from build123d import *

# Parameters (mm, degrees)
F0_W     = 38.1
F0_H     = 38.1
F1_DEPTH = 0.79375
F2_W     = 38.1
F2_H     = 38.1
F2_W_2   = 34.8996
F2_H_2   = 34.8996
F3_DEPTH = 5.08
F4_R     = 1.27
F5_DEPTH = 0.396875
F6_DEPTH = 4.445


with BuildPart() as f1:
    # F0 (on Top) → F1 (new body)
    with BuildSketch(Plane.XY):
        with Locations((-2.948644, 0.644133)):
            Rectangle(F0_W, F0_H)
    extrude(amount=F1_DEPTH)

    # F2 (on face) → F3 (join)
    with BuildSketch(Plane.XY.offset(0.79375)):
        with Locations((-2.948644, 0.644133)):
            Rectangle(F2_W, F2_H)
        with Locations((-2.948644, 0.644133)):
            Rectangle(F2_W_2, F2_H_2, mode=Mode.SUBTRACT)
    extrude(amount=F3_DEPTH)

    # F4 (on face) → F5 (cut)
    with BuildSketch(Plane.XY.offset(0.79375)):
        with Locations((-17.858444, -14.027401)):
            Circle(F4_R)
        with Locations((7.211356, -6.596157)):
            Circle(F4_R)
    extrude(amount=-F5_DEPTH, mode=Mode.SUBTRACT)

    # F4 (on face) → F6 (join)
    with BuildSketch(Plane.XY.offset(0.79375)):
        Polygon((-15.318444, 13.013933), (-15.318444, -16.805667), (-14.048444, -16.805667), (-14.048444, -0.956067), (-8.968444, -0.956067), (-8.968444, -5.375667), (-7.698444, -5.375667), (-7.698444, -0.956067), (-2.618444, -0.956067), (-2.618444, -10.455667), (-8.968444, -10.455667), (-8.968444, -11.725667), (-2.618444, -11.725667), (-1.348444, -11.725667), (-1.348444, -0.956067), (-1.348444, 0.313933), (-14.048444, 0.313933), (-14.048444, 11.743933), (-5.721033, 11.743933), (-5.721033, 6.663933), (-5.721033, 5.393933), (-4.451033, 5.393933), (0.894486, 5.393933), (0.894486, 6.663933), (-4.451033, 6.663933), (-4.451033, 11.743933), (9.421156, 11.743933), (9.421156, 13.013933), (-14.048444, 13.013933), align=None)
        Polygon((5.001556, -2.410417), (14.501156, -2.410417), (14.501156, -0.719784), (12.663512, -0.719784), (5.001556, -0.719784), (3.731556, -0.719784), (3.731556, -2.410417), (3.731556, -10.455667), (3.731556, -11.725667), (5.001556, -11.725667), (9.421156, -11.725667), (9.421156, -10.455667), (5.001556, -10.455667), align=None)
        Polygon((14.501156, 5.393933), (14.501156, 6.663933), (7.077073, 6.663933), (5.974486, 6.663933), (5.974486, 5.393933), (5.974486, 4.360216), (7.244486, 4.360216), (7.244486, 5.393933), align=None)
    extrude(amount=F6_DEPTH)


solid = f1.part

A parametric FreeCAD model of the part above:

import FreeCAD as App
import Part
import Sketcher
from FreeCAD import Vector
Q = App.Units.Quantity

doc = App.newDocument("Part")
body = doc.addObject("PartDesign::Body", "Body")

# Sketch on XY plane
sketch1 = doc.addObject("Sketcher::SketchObject", "Sketch")
body.addObject(sketch1)
sketch1.AttachmentSupport = (doc.XY_Plane, [""])
sketch1.MapMode = "FlatFace"
sketch1.addGeometry(Part.LineSegment(Vector(-22, 20, 0), Vector(-22, -18, 0)), False)
sketch1.addGeometry(Part.LineSegment(Vector(-22, -18, 0), Vector(16, -18, 0)), False)
sketch1.addGeometry(Part.LineSegment(Vector(16, -18, 0), Vector(16, 20, 0)), False)
sketch1.addGeometry(Part.LineSegment(Vector(16, 20, 0), Vector(-22, 20, 0)), False)
sketch1.addConstraint(Sketcher.Constraint("Coincident", 0, 2, 1, 1))
sketch1.addConstraint(Sketcher.Constraint("Coincident", 1, 2, 2, 1))
sketch1.addConstraint(Sketcher.Constraint("Coincident", 2, 2, 3, 1))
sketch1.addConstraint(Sketcher.Constraint("Coincident", 3, 2, 0, 1))
sketch1.addConstraint(Sketcher.Constraint("Vertical", 0))
sketch1.addConstraint(Sketcher.Constraint("Horizontal", 1))
sketch1.addConstraint(Sketcher.Constraint("Vertical", 2))
sketch1.addConstraint(Sketcher.Constraint("Horizontal", 3))
sketch1.addConstraint(Sketcher.Constraint("Equal", 3, 0))
sketch1.addConstraint(Sketcher.Constraint("DistanceX", 1, 1, 1, 2, Q("1.5 in")))
sketch1.addConstraint(Sketcher.Constraint("DistanceX", 0, 2, -1, 1, Q("21.998644 mm")))
sketch1.addConstraint(Sketcher.Constraint("DistanceY", 0, 2, -1, 1, Q("18.405867 mm")))
pad1 = doc.addObject("PartDesign::Pad", "Pad")
body.addObject(pad1)
pad1.Profile = sketch1
pad1.Length = Q("0.03125 in")

# Sketch on XY plane
sketch2 = doc.addObject("Sketcher::SketchObject", "Sketch001")
body.addObject(sketch2)
sketch2.AttachmentSupport = (doc.XY_Plane, [""])
sketch2.MapMode = "FlatFace"
sketch2.AttachmentOffset = App.Placement(Vector(0, 0, 0.03125 * 25.4), App.Rotation())
sketch2.addGeometry(Part.LineSegment(Vector(-22, 20, 0), Vector(-22, -18, 0)), False)
sketch2.addGeometry(Part.LineSegment(Vector(-22, -18, 0), Vector(16, -18, 0)), False)
sketch2.addGeometry(Part.LineSegment(Vector(16, -18, 0), Vector(16, 20, 0)), False)
sketch2.addGeometry(Part.LineSegment(Vector(16, 20, 0), Vector(-22, 20, 0)), False)
sketch2.addGeometry(Part.LineSegment(Vector(15, -17, 0), Vector(-20, -17, 0)), False)
sketch2.addGeometry(Part.LineSegment(Vector(-20, -17, 0), Vector(-20, 18, 0)), False)
sketch2.addGeometry(Part.LineSegment(Vector(-20, 18, 0), Vector(15, 18, 0)), False)
sketch2.addGeometry(Part.LineSegment(Vector(15, 18, 0), Vector(15, -17, 0)), False)
sketch2.addConstraint(Sketcher.Constraint("Coincident", 0, 2, 1, 1))
sketch2.addConstraint(Sketcher.Constraint("Coincident", 1, 2, 2, 1))
sketch2.addConstraint(Sketcher.Constraint("Coincident", 2, 2, 3, 1))
sketch2.addConstraint(Sketcher.Constraint("Coincident", 3, 2, 0, 1))
sketch2.addConstraint(Sketcher.Constraint("Coincident", 4, 2, 5, 1))
sketch2.addConstraint(Sketcher.Constraint("Coincident", 5, 2, 6, 1))
sketch2.addConstraint(Sketcher.Constraint("Coincident", 6, 2, 7, 1))
sketch2.addConstraint(Sketcher.Constraint("Coincident", 7, 2, 4, 1))
sketch2.addConstraint(Sketcher.Constraint("Vertical", 0))
sketch2.addConstraint(Sketcher.Constraint("Horizontal", 1))
sketch2.addConstraint(Sketcher.Constraint("Vertical", 2))
sketch2.addConstraint(Sketcher.Constraint("Horizontal", 3))
sketch2.addConstraint(Sketcher.Constraint("Horizontal", 4))
sketch2.addConstraint(Sketcher.Constraint("Vertical", 5))
sketch2.addConstraint(Sketcher.Constraint("Horizontal", 6))
sketch2.addConstraint(Sketcher.Constraint("Vertical", 7))
sketch2.addConstraint(Sketcher.Constraint("Equal", 3, 0))
sketch2.addConstraint(Sketcher.Constraint("Equal", 6, 5))
sketch2.addConstraint(Sketcher.Constraint("DistanceX", 1, 1, 1, 2, Q("1.5 in")))
sketch2.addConstraint(Sketcher.Constraint("DistanceX", 4, 2, 4, 1, Q("1.374 in")))
sketch2.addConstraint(Sketcher.Constraint("DistanceX", 0, 2, 4, 2, Q("0.063 in")))
sketch2.addConstraint(Sketcher.Constraint("DistanceY", 0, 2, 4, 2, Q("0.063 in")))
sketch2.addConstraint(Sketcher.Constraint("DistanceX", 0, 2, -1, 1, Q("21.998644 mm")))
sketch2.addConstraint(Sketcher.Constraint("DistanceY", 0, 2, -1, 1, Q("18.405867 mm")))
pad2 = doc.addObject("PartDesign::Pad", "Pad001")
body.addObject(pad2)
pad2.Profile = sketch2
pad2.Length = Q("0.2 in")

# Sketch on XY plane
sketch3 = doc.addObject("Sketcher::SketchObject", "Sketch002")
body.addObject(sketch3)
sketch3.AttachmentSupport = (doc.XY_Plane, [""])
sketch3.MapMode = "FlatFace"
sketch3.AttachmentOffset = App.Placement(Vector(0, 0, 0.03125 * 25.4), App.Rotation())
sketch3.addGeometry(Part.Circle(Vector(-17.9, -14, 0), Vector(0, 0, 1), 1.3), False)
sketch3.addGeometry(Part.Circle(Vector(7.2, -6.6, 0), Vector(0, 0, 1), 1.3), False)
sketch3.addConstraint(Sketcher.Constraint("Equal", 0, 1))
sketch3.addConstraint(Sketcher.Constraint("Diameter", 0, Q("0.1 in")))
sketch3.addConstraint(Sketcher.Constraint("DistanceX", 0, 3, 1, 3, Q("0.987 in")))
sketch3.addConstraint(Sketcher.Constraint("DistanceY", 0, 3, -1, 1, Q("14.027401 mm")))
sketch3.addConstraint(Sketcher.Constraint("DistanceX", 0, 3, -1, 1, Q("17.858444 mm")))
sketch3.addConstraint(Sketcher.Constraint("DistanceY", 1, 3, -1, 1, Q("6.596157 mm")))
pocket1 = doc.addObject("PartDesign::Pocket", "Pocket")
body.addObject(pocket1)
pocket1.Profile = sketch3
pocket1.Length = Q("0.015625 in")

# Sketch on XY plane
sketch4 = doc.addObject("Sketcher::SketchObject", "Sketch003")
body.addObject(sketch4)
sketch4.AttachmentSupport = (doc.XY_Plane, [""])
sketch4.MapMode = "FlatFace"
sketch4.AttachmentOffset = App.Placement(Vector(0, 0, 0.03125 * 25.4), App.Rotation())
sketch4.addGeometry(Part.LineSegment(Vector(-15.3, 13, 0), Vector(-15.3, -16.8, 0)), False)
sketch4.addGeometry(Part.LineSegment(Vector(-15.3, -16.8, 0), Vector(-14, -16.8, 0)), False)
sketch4.addGeometry(Part.LineSegment(Vector(-14, -16.8, 0), Vector(-14, -1, 0)), False)
sketch4.addGeometry(Part.LineSegment(Vector(-14, -1, 0), Vector(-9, -1, 0)), False)
sketch4.addGeometry(Part.LineSegment(Vector(-9, -1, 0), Vector(-9, -5.4, 0)), False)
sketch4.addGeometry(Part.LineSegment(Vector(-9, -5.4, 0), Vector(-7.7, -5.4, 0)), False)
sketch4.addGeometry(Part.LineSegment(Vector(-7.7, -5.4, 0), Vector(-7.7, -1, 0)), False)
sketch4.addGeometry(Part.LineSegment(Vector(-7.7, -1, 0), Vector(-2.6, -1, 0)), False)
sketch4.addGeometry(Part.LineSegment(Vector(-2.6, -1, 0), Vector(-2.6, -10.5, 0)), False)
sketch4.addGeometry(Part.LineSegment(Vector(-2.6, -10.5, 0), Vector(-9, -10.5, 0)), False)
sketch4.addGeometry(Part.LineSegment(Vector(-9, -10.5, 0), Vector(-9, -11.7, 0)), False)
sketch4.addGeometry(Part.LineSegment(Vector(-9, -11.7, 0), Vector(-1.3, -11.7, 0)), False)
sketch4.addGeometry(Part.LineSegment(Vector(-1.3, -11.7, 0), Vector(-1.3, 0.3, 0)), False)
sketch4.addGeometry(Part.LineSegment(Vector(-1.3, 0.3, 0), Vector(-14, 0.3, 0)), False)
sketch4.addGeometry(Part.LineSegment(Vector(-14, 0.3, 0), Vector(-14, 11.7, 0)), False)
sketch4.addGeometry(Part.LineSegment(Vector(-14, 11.7, 0), Vector(-5.7, 11.7, 0)), False)
sketch4.addGeometry(Part.LineSegment(Vector(-5.7, 11.7, 0), Vector(-5.7, 5.4, 0)), False)
sketch4.addGeometry(Part.LineSegment(Vector(-5.7, 5.4, 0), Vector(0.9, 5.4, 0)), False)
sketch4.addGeometry(Part.LineSegment(Vector(0.9, 5.4, 0), Vector(0.9, 6.7, 0)), False)
sketch4.addGeometry(Part.LineSegment(Vector(0.9, 6.7, 0), Vector(-4.5, 6.7, 0)), False)
sketch4.addGeometry(Part.LineSegment(Vector(-4.5, 6.7, 0), Vector(-4.5, 11.7, 0)), False)
sketch4.addGeometry(Part.LineSegment(Vector(-4.5, 11.7, 0), Vector(9.4, 11.7, 0)), False)
sketch4.addGeometry(Part.LineSegment(Vector(9.4, 11.7, 0), Vector(9.4, 13, 0)), False)
sketch4.addGeometry(Part.LineSegment(Vector(9.4, 13, 0), Vector(-15.3, 13, 0)), False)
sketch4.addGeometry(Part.LineSegment(Vector(5, -2.4, 0), Vector(14.5, -2.4, 0)), False)
sketch4.addGeometry(Part.LineSegment(Vector(14.5, -2.4, 0), Vector(14.5, -0.7, 0)), False)
sketch4.addGeometry(Part.LineSegment(Vector(14.5, -0.7, 0), Vector(3.7, -0.7, 0)), False)
sketch4.addGeometry(Part.LineSegment(Vector(3.7, -0.7, 0), Vector(3.7, -11.7, 0)), False)
sketch4.addGeometry(Part.LineSegment(Vector(3.7, -11.7, 0), Vector(9.4, -11.7, 0)), False)
sketch4.addGeometry(Part.LineSegment(Vector(9.4, -11.7, 0), Vector(9.4, -10.5, 0)), False)
sketch4.addGeometry(Part.LineSegment(Vector(9.4, -10.5, 0), Vector(5, -10.5, 0)), False)
sketch4.addGeometry(Part.LineSegment(Vector(5, -10.5, 0), Vector(5, -2.4, 0)), False)
sketch4.addGeometry(Part.LineSegment(Vector(14.5, 5.4, 0), Vector(14.5, 6.7, 0)), False)
sketch4.addGeometry(Part.LineSegment(Vector(14.5, 6.7, 0), Vector(6, 6.7, 0)), False)
sketch4.addGeometry(Part.LineSegment(Vector(6, 6.7, 0), Vector(6, 4.4, 0)), False)
sketch4.addGeometry(Part.LineSegment(Vector(6, 4.4, 0), Vector(7.2, 4.4, 0)), False)
sketch4.addGeometry(Part.LineSegment(Vector(7.2, 4.4, 0), Vector(7.2, 5.4, 0)), False)
sketch4.addGeometry(Part.LineSegment(Vector(7.2, 5.4, 0), Vector(14.5, 5.4, 0)), False)
sketch4.addConstraint(Sketcher.Constraint("Coincident", 0, 2, 1, 1))
sketch4.addConstraint(Sketcher.Constraint("Coincident", 1, 2, 2, 1))
sketch4.addConstraint(Sketcher.Constraint("Coincident", 2, 2, 3, 1))
sketch4.addConstraint(Sketcher.Constraint("Coincident", 3, 2, 4, 1))
sketch4.addConstraint(Sketcher.Constraint("Coincident", 4, 2, 5, 1))
sketch4.addConstraint(Sketcher.Constraint("Coincident", 5, 2, 6, 1))
sketch4.addConstraint(Sketcher.Constraint("Coincident", 6, 2, 7, 1))
sketch4.addConstraint(Sketcher.Constraint("Coincident", 7, 2, 8, 1))
sketch4.addConstraint(Sketcher.Constraint("Coincident", 8, 2, 9, 1))
sketch4.addConstraint(Sketcher.Constraint("Coincident", 9, 2, 10, 1))
sketch4.addConstraint(Sketcher.Constraint("Coincident", 10, 2, 11, 1))
sketch4.addConstraint(Sketcher.Constraint("Coincident", 11, 2, 12, 1))
sketch4.addConstraint(Sketcher.Constraint("Coincident", 12, 2, 13, 1))
sketch4.addConstraint(Sketcher.Constraint("Coincident", 13, 2, 14, 1))
sketch4.addConstraint(Sketcher.Constraint("Coincident", 14, 2, 15, 1))
sketch4.addConstraint(Sketcher.Constraint("Coincident", 15, 2, 16, 1))
sketch4.addConstraint(Sketcher.Constraint("Coincident", 16, 2, 17, 1))
sketch4.addConstraint(Sketcher.Constraint("Coincident", 17, 2, 18, 1))
sketch4.addConstraint(Sketcher.Constraint("Coincident", 18, 2, 19, 1))
sketch4.addConstraint(Sketcher.Constraint("Coincident", 19, 2, 20, 1))
sketch4.addConstraint(Sketcher.Constraint("Coincident", 20, 2, 21, 1))
sketch4.addConstraint(Sketcher.Constraint("Coincident", 21, 2, 22, 1))
sketch4.addConstraint(Sketcher.Constraint("Coincident", 22, 2, 23, 1))
sketch4.addConstraint(Sketcher.Constraint("Coincident", 23, 2, 0, 1))
sketch4.addConstraint(Sketcher.Constraint("Coincident", 24, 2, 25, 1))
sketch4.addConstraint(Sketcher.Constraint("Coincident", 25, 2, 26, 1))
sketch4.addConstraint(Sketcher.Constraint("Coincident", 26, 2, 27, 1))
sketch4.addConstraint(Sketcher.Constraint("Coincident", 27, 2, 28, 1))
sketch4.addConstraint(Sketcher.Constraint("Coincident", 28, 2, 29, 1))
sketch4.addConstraint(Sketcher.Constraint("Coincident", 29, 2, 30, 1))
sketch4.addConstraint(Sketcher.Constraint("Coincident", 30, 2, 31, 1))
sketch4.addConstraint(Sketcher.Constraint("Coincident", 31, 2, 24, 1))
sketch4.addConstraint(Sketcher.Constraint("Coincident", 32, 2, 33, 1))
sketch4.addConstraint(Sketcher.Constraint("Coincident", 33, 2, 34, 1))
sketch4.addConstraint(Sketcher.Constraint("Coincident", 34, 2, 35, 1))
sketch4.addConstraint(Sketcher.Constraint("Coincident", 35, 2, 36, 1))
sketch4.addConstraint(Sketcher.Constraint("Coincident", 36, 2, 37, 1))
sketch4.addConstraint(Sketcher.Constraint("Coincident", 37, 2, 32, 1))
sketch4.addConstraint(Sketcher.Constraint("Vertical", 0))
sketch4.addConstraint(Sketcher.Constraint("Horizontal", 1))
sketch4.addConstraint(Sketcher.Constraint("Vertical", 2))
sketch4.addConstraint(Sketcher.Constraint("Horizontal", 3))
sketch4.addConstraint(Sketcher.Constraint("Vertical", 4))
sketch4.addConstraint(Sketcher.Constraint("Horizontal", 5))
sketch4.addConstraint(Sketcher.Constraint("Vertical", 6))
sketch4.addConstraint(Sketcher.Constraint("Horizontal", 7))
sketch4.addConstraint(Sketcher.Constraint("Vertical", 8))
sketch4.addConstraint(Sketcher.Constraint("Horizontal", 9))
sketch4.addConstraint(Sketcher.Constraint("Vertical", 10))
sketch4.addConstraint(Sketcher.Constraint("Horizontal", 11))
sketch4.addConstraint(Sketcher.Constraint("Vertical", 12))
sketch4.addConstraint(Sketcher.Constraint("Horizontal", 13))
sketch4.addConstraint(Sketcher.Constraint("Vertical", 14))
sketch4.addConstraint(Sketcher.Constraint("Horizontal", 15))
sketch4.addConstraint(Sketcher.Constraint("Vertical", 16))
sketch4.addConstraint(Sketcher.Constraint("Horizontal", 17))
sketch4.addConstraint(Sketcher.Constraint("Vertical", 18))
sketch4.addConstraint(Sketcher.Constraint("Horizontal", 19))
sketch4.addConstraint(Sketcher.Constraint("Vertical", 20))
sketch4.addConstraint(Sketcher.Constraint("Horizontal", 21))
sketch4.addConstraint(Sketcher.Constraint("Vertical", 22))
sketch4.addConstraint(Sketcher.Constraint("Horizontal", 23))
sketch4.addConstraint(Sketcher.Constraint("Horizontal", 24))
sketch4.addConstraint(Sketcher.Constraint("Vertical", 25))
sketch4.addConstraint(Sketcher.Constraint("Horizontal", 26))
sketch4.addConstraint(Sketcher.Constraint("Vertical", 27))
sketch4.addConstraint(Sketcher.Constraint("Horizontal", 28))
sketch4.addConstraint(Sketcher.Constraint("Vertical", 29))
sketch4.addConstraint(Sketcher.Constraint("Horizontal", 30))
sketch4.addConstraint(Sketcher.Constraint("Vertical", 31))
sketch4.addConstraint(Sketcher.Constraint("Vertical", 32))
sketch4.addConstraint(Sketcher.Constraint("Horizontal", 33))
sketch4.addConstraint(Sketcher.Constraint("Vertical", 34))
sketch4.addConstraint(Sketcher.Constraint("Horizontal", 35))
sketch4.addConstraint(Sketcher.Constraint("Vertical", 36))
sketch4.addConstraint(Sketcher.Constraint("Horizontal", 37))
sketch4.addConstraint(Sketcher.Constraint("Horizontal", 3, 2, 6, 2))
sketch4.addConstraint(Sketcher.Constraint("Horizontal", 15, 2, 20, 2))
sketch4.addConstraint(Sketcher.Constraint("Horizontal", 11, 2, 27, 2))
sketch4.addConstraint(Sketcher.Constraint("Horizontal", 9, 2, 29, 2))
sketch4.addConstraint(Sketcher.Constraint("Horizontal", 19, 2, 32, 2))
sketch4.addConstraint(Sketcher.Constraint("Horizontal", 17, 2, 36, 2))
sketch4.addConstraint(Sketcher.Constraint("Vertical", 4, 2, 9, 2))
sketch4.addConstraint(Sketcher.Constraint("Vertical", 2, 2, 13, 2))
sketch4.addConstraint(Sketcher.Constraint("Vertical", 22, 2, 28, 2))
sketch4.addConstraint(Sketcher.Constraint("Vertical", 25, 2, 32, 2))
sketch4.addConstraint(Sketcher.Constraint("Equal", 1, 5))
sketch4.addConstraint(Sketcher.Constraint("Equal", 3, 7))
sketch4.addConstraint(Sketcher.Constraint("Equal", 5, 35))
sketch4.addConstraint(Sketcher.Constraint("Equal", 30, 4))
sketch4.addConstraint(Sketcher.Constraint("Equal", 24, 8))
sketch4.addConstraint(Sketcher.Constraint("Equal", 35, 10))
sketch4.addConstraint(Sketcher.Constraint("Equal", 9, 16))
sketch4.addConstraint(Sketcher.Constraint("Equal", 10, 18))
sketch4.addConstraint(Sketcher.Constraint("Equal", 18, 22))
sketch4.addConstraint(Sketcher.Constraint("DistanceX", 3, 1, 3, 2, Q("0.2 in")))
sketch4.addConstraint(Sketcher.Constraint("DistanceX", 11, 1, 11, 2, Q("0.3 in")))
sketch4.addConstraint(Sketcher.Constraint("DistanceX", 1, 1, 1, 2, Q("0.05 in")))
sketch4.addConstraint(Sketcher.Constraint("DistanceY", 14, 1, 14, 2, Q("0.45 in")))
sketch4.addConstraint(Sketcher.Constraint("DistanceY", 8, 2, 5, 2, Q("0.2 in")))
sketch4.addConstraint(Sketcher.Constraint("DistanceY", 1, 2, 10, 2, Q("0.2 in")))
sketch4.addConstraint(Sketcher.Constraint("DistanceY", 2, 2, 14, 2, Q("0.5 in")))
sketch4.addConstraint(Sketcher.Constraint("DistanceX", 12, 2, 26, 2, Q("0.2 in")))
sketch4.addConstraint(Sketcher.Constraint("DistanceX", 8, 2, 30, 2, Q("0.3 in")))
sketch4.addConstraint(Sketcher.Constraint("DistanceX", 18, 2, 33, 2, Q("0.2 in")))
sketch4.addConstraint(Sketcher.Constraint("DistanceY", 26, 2, 34, 2, Q("0.2 in")))
sketch4.addConstraint(Sketcher.Constraint("DistanceX", 23, 2, 23, 1, Q("0.974 in")))
sketch4.addConstraint(Sketcher.Constraint("DistanceX", 16, 2, 19, 2, Q("0.05 in")))
sketch4.addConstraint(Sketcher.Constraint("DistanceX", 15, 1, 15, 2, Q("8.327411 mm")))
sketch4.addConstraint(Sketcher.Constraint("DistanceX", 17, 1, 17, 2, Q("6.615519 mm")))
sketch4.addConstraint(Sketcher.Constraint("DistanceY", 31, 1, 31, 2, Q("8.04525 mm")))
sketch4.addConstraint(Sketcher.Constraint("DistanceY", 25, 1, 25, 2, Q("1.690633 mm")))
sketch4.addConstraint(Sketcher.Constraint("DistanceX", 0, 2, -1, 1, Q("15.318444 mm")))
sketch4.addConstraint(Sketcher.Constraint("DistanceY", 0, 2, -1, 1, Q("16.805667 mm")))
pad3 = doc.addObject("PartDesign::Pad", "Pad002")
body.addObject(pad3)
pad3.Profile = sketch4
pad3.Length = Q("0.175 in")

doc.recompute()
